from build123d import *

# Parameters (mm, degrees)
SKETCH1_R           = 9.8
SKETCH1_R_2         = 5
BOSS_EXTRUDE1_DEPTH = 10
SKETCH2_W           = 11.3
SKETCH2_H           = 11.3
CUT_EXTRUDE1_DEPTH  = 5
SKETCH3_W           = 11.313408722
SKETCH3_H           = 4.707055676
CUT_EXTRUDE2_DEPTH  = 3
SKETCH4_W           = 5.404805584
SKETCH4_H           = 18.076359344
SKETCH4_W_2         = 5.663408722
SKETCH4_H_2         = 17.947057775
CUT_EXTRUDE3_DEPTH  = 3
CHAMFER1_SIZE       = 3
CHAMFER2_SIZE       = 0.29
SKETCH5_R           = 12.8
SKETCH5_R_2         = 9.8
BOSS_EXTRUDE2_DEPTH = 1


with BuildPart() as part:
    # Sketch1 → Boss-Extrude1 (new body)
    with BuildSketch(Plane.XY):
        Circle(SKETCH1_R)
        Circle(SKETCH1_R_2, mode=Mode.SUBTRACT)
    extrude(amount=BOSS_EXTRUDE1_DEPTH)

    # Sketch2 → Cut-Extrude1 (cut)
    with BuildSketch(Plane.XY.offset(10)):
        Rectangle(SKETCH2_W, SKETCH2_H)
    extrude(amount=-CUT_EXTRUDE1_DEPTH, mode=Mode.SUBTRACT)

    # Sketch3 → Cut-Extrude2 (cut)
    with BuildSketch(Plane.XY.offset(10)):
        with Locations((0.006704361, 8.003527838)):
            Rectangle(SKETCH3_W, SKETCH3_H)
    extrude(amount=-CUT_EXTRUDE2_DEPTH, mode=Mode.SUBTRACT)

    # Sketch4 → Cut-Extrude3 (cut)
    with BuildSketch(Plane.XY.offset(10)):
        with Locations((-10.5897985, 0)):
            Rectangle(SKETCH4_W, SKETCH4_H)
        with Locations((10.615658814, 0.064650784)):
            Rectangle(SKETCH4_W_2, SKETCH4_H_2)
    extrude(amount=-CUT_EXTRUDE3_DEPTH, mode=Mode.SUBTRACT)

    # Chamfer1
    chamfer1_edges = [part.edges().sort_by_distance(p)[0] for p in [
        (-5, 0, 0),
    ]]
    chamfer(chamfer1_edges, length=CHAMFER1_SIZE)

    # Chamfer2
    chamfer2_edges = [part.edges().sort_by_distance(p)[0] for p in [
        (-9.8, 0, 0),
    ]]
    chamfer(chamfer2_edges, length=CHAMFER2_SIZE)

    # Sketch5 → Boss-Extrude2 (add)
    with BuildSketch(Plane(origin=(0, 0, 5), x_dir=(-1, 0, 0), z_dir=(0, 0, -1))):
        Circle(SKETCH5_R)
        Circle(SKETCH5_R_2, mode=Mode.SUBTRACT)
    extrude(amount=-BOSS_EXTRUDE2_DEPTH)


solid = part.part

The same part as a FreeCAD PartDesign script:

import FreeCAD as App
import Part
import Sketcher

V = App.Vector
Q = App.Units.Quantity


def edges_at(feature, points):
    """Names of the edges that pass closest to the given points."""
    edges = feature.Shape.Edges
    near = lambda p: min(range(len(edges)), key=lambda i: edges[i].distToShape(Part.Vertex(*p))[0])
    return sorted({f"Edge{near(p) + 1}" for p in points})

doc = App.newDocument("Part")
body = doc.addObject("PartDesign::Body", "Body")

# Sketch on XY plane
sketch1 = body.newObject("Sketcher::SketchObject", "Sketch")
sketch1.AttachmentSupport = (doc.getObject("XY_Plane"), [""])
sketch1.MapMode = "FlatFace"
sketch1.addGeometry(Part.Circle(V(0, 0, 0), V(0, 0, 1), 9.8), False)
sketch1.addGeometry(Part.Circle(V(0, 0, 0), V(0, 0, 1), 5), False)
sketch1.addConstraint(Sketcher.Constraint("Coincident", 0, 3, -1, 1))
sketch1.addConstraint(Sketcher.Constraint("Coincident", 1, 3, -1, 1))
sketch1.addConstraint(Sketcher.Constraint("Diameter", 1, Q("10 mm")))
sketch1.addConstraint(Sketcher.Constraint("Diameter", 0, Q("19.6 mm")))
pad1 = body.newObject("PartDesign::Pad", "Pad")
pad1.Profile = sketch1
pad1.Length = 10

# Sketch on XY plane
sketch2 = body.newObject("Sketcher::SketchObject", "Sketch001")
sketch2.AttachmentSupport = (doc.getObject("XY_Plane"), [""])
sketch2.MapMode = "FlatFace"
sketch2.AttachmentOffset = App.Placement(V(0, 0, 10), App.Rotation())
sketch2.addGeometry(Part.LineSegment(V(-5.65, 5.65, 0), V(-5.65, -5.65, 0)), False)
sketch2.addGeometry(Part.LineSegment(V(-5.65, -5.65, 0), V(5.65, -5.65, 0)), False)
sketch2.addGeometry(Part.LineSegment(V(5.65, -5.65, 0), V(5.65, 5.65, 0)), False)
sketch2.addGeometry(Part.LineSegment(V(5.65, 5.65, 0), V(-5.65, 5.65, 0)), False)
sketch2.addConstraint(Sketcher.Constraint("Coincident", 0, 2, 1, 1))
sketch2.addConstraint(Sketcher.Constraint("Coincident", 1, 2, 2, 1))
sketch2.addConstraint(Sketcher.Constraint("Coincident", 2, 2, 3, 1))
sketch2.addConstraint(Sketcher.Constraint("Coincident", 3, 2, 0, 1))
sketch2.addConstraint(Sketcher.Constraint("Vertical", 0))
sketch2.addConstraint(Sketcher.Constraint("Horizontal", 1))
sketch2.addConstraint(Sketcher.Constraint("Vertical", 2))
sketch2.addConstraint(Sketcher.Constraint("Horizontal", 3))
sketch2.addConstraint(Sketcher.Constraint("Symmetric", 0, 2, 2, 2, -1, 1))
sketch2.addConstraint(Sketcher.Constraint("Equal", 3, 0))
sketch2.addConstraint(Sketcher.Constraint("DistanceX", 1, 1, 1, 2, Q("11.3 mm")))
pocket1 = body.newObject("PartDesign::Pocket", "Pocket")
pocket1.Profile = sketch2
pocket1.Length = 5

# Sketch on XY plane
sketch3 = body.newObject("Sketcher::SketchObject", "Sketch002")
sketch3.AttachmentSupport = (doc.getObject("XY_Plane"), [""])
sketch3.MapMode = "FlatFace"
sketch3.AttachmentOffset = App.Placement(V(0, 0, 10), App.Rotation())
sketch3.addGeometry(Part.LineSegment(V(-5.65, 10.357056, 0), V(-5.65, 5.65, 0)), False)
sketch3.addGeometry(Part.LineSegment(V(-5.65, 5.65, 0), V(5.663409, 5.65, 0)), False)
sketch3.addGeometry(Part.LineSegment(V(5.663409, 5.65, 0), V(5.663409, 10.357056, 0)), False)
sketch3.addGeometry(Part.LineSegment(V(5.663409, 10.357056, 0), V(-5.65, 10.357056, 0)), False)
sketch3.addConstraint(Sketcher.Constraint("Coincident", 0, 2, 1, 1))
sketch3.addConstraint(Sketcher.Constraint("Coincident", 1, 2, 2, 1))
sketch3.addConstraint(Sketcher.Constraint("Coincident", 2, 2, 3, 1))
sketch3.addConstraint(Sketcher.Constraint("Coincident", 3, 2, 0, 1))
sketch3.addConstraint(Sketcher.Constraint("Vertical", 0))
sketch3.addConstraint(Sketcher.Constraint("Horizontal", 1))
sketch3.addConstraint(Sketcher.Constraint("Vertical", 2))
sketch3.addConstraint(Sketcher.Constraint("Horizontal", 3))
sketch3.addConstraint(Sketcher.Constraint("DistanceX", 0, 2, -1, 1, Q("5.65 mm")))
sketch3.addConstraint(Sketcher.Constraint("DistanceY", -1, 1, 0, 2, Q("5.65 mm")))
sketch3.addConstraint(Sketcher.Constraint("DistanceX", 1, 1, 1, 2, Q("11.313409 mm")))
sketch3.addConstraint(Sketcher.Constraint("DistanceY", 0, 2, 0, 1, Q("4.707056 mm")))
pocket2 = body.newObject("PartDesign::Pocket", "Pocket001")
pocket2.Profile = sketch3
pocket2.Length = 3

# Sketch on XY plane
sketch4 = body.newObject("Sketcher::SketchObject", "Sketch003")
sketch4.AttachmentSupport = (doc.getObject("XY_Plane"), [""])
sketch4.MapMode = "FlatFace"
sketch4.AttachmentOffset = App.Placement(V(0, 0, 10), App.Rotation())
sketch4.addGeometry(Part.LineSegment(V(-13.292201, 9.03818, 0), V(-13.292201, -9.03818, 0)), False)
sketch4.addGeometry(Part.LineSegment(V(-13.292201, -9.03818, 0), V(-7.887396, -9.03818, 0)), False)
sketch4.addGeometry(Part.LineSegment(V(-7.887396, -9.03818, 0), V(-7.887396, 9.03818, 0)), False)
sketch4.addGeometry(Part.LineSegment(V(-7.887396, 9.03818, 0), V(-13.292201, 9.03818, 0)), False)
sketch4.addGeometry(Part.LineSegment(V(7.783954, 9.03818, 0), V(7.783954, -8.908878, 0)), False)
sketch4.addGeometry(Part.LineSegment(V(7.783954, -8.908878, 0), V(13.447363, -8.908878, 0)), False)
sketch4.addGeometry(Part.LineSegment(V(13.447363, -8.908878, 0), V(13.447363, 9.03818, 0)), False)
sketch4.addGeometry(Part.LineSegment(V(13.447363, 9.03818, 0), V(7.783954, 9.03818, 0)), False)
sketch4.addConstraint(Sketcher.Constraint("Coincident", 0, 2, 1, 1))
sketch4.addConstraint(Sketcher.Constraint("Coincident", 1, 2, 2, 1))
sketch4.addConstraint(Sketcher.Constraint("Coincident", 2, 2, 3, 1))
sketch4.addConstraint(Sketcher.Constraint("Coincident", 3, 2, 0, 1))
sketch4.addConstraint(Sketcher.Constraint("Coincident", 4, 2, 5, 1))
sketch4.addConstraint(Sketcher.Constraint("Coincident", 5, 2, 6, 1))
sketch4.addConstraint(Sketcher.Constraint("Coincident", 6, 2, 7, 1))
sketch4.addConstraint(Sketcher.Constraint("Coincident", 7, 2, 4, 1))
sketch4.addConstraint(Sketcher.Constraint("Vertical", 0))
sketch4.addConstraint(Sketcher.Constraint("Horizontal", 1))
sketch4.addConstraint(Sketcher.Constraint("Vertical", 2))
sketch4.addConstraint(Sketcher.Constraint("Horizontal", 3))
sketch4.addConstraint(Sketcher.Constraint("Vertical", 4))
sketch4.addConstraint(Sketcher.Constraint("Horizontal", 5))
sketch4.addConstraint(Sketcher.Constraint("Vertical", 6))
sketch4.addConstraint(Sketcher.Constraint("Horizontal", 7))
sketch4.addConstraint(Sketcher.Constraint("Horizontal", 3, 2, 6, 2))
sketch4.addConstraint(Sketcher.Constraint("DistanceX", 5, 1, 5, 2, Q("5.663409 mm")))
sketch4.addConstraint(Sketcher.Constraint("DistanceY", 0, 2, 0, 1, Q("18.076359 mm")))
sketch4.addConstraint(Sketcher.Constraint("DistanceX", 0, 2, -1, 1, Q("13.292201 mm")))
sketch4.addConstraint(Sketcher.Constraint("DistanceY", 1, 2, 4, 2, Q("0.129302 mm")))
sketch4.addConstraint(Sketcher.Constraint("DistanceX", 1, 1, 1, 2, Q("5.404806 mm")))
sketch4.addConstraint(Sketcher.Constraint("DistanceY", 0, 2, -1, 1, Q("9.03818 mm")))
sketch4.addConstraint(Sketcher.Constraint("DistanceX", 1, 2, 4, 2, Q("15.67135 mm")))
pocket3 = body.newObject("PartDesign::Pocket", "Pocket002")
pocket3.Profile = sketch4
pocket3.Length = 3
doc.recompute()

chamfer = body.newObject("PartDesign::Chamfer", "Chamfer")
chamfer.Base = (pocket3, edges_at(pocket3, [(-5, 0, 0)]))
chamfer.Size = 3
doc.recompute()

chamfer2 = body.newObject("PartDesign::Chamfer", "Chamfer001")
chamfer2.Base = (chamfer, edges_at(chamfer, [(-9.8, 0, 0)]))
chamfer2.Size = 0.29

# Sketch on XY plane
sketch5 = body.newObject("Sketcher::SketchObject", "Sketch004")
sketch5.AttachmentSupport = (doc.getObject("XY_Plane"), [""])
sketch5.MapMode = "FlatFace"
sketch5.AttachmentOffset = App.Placement(V(0, 0, 5), App.Rotation())
sketch5.addGeometry(Part.Circle(V(0, 0, 0), V(0, 0, 1), 12.8), False)
sketch5.addGeometry(Part.Circle(V(0, 0, 0), V(0, 0, 1), 9.8), False)
sketch5.addConstraint(Sketcher.Constraint("Coincident", 0, 3, -1, 1))
sketch5.addConstraint(Sketcher.Constraint("Coincident", 1, 3, -1, 1))
sketch5.addConstraint(Sketcher.Constraint("Diameter", 0, Q("25.6 mm")))
sketch5.addConstraint(Sketcher.Constraint("Diameter", 1, Q("19.6 mm")))
pad2 = body.newObject("PartDesign::Pad", "Pad001")
pad2.Profile = sketch5
pad2.Length = 1

doc.recompute()
